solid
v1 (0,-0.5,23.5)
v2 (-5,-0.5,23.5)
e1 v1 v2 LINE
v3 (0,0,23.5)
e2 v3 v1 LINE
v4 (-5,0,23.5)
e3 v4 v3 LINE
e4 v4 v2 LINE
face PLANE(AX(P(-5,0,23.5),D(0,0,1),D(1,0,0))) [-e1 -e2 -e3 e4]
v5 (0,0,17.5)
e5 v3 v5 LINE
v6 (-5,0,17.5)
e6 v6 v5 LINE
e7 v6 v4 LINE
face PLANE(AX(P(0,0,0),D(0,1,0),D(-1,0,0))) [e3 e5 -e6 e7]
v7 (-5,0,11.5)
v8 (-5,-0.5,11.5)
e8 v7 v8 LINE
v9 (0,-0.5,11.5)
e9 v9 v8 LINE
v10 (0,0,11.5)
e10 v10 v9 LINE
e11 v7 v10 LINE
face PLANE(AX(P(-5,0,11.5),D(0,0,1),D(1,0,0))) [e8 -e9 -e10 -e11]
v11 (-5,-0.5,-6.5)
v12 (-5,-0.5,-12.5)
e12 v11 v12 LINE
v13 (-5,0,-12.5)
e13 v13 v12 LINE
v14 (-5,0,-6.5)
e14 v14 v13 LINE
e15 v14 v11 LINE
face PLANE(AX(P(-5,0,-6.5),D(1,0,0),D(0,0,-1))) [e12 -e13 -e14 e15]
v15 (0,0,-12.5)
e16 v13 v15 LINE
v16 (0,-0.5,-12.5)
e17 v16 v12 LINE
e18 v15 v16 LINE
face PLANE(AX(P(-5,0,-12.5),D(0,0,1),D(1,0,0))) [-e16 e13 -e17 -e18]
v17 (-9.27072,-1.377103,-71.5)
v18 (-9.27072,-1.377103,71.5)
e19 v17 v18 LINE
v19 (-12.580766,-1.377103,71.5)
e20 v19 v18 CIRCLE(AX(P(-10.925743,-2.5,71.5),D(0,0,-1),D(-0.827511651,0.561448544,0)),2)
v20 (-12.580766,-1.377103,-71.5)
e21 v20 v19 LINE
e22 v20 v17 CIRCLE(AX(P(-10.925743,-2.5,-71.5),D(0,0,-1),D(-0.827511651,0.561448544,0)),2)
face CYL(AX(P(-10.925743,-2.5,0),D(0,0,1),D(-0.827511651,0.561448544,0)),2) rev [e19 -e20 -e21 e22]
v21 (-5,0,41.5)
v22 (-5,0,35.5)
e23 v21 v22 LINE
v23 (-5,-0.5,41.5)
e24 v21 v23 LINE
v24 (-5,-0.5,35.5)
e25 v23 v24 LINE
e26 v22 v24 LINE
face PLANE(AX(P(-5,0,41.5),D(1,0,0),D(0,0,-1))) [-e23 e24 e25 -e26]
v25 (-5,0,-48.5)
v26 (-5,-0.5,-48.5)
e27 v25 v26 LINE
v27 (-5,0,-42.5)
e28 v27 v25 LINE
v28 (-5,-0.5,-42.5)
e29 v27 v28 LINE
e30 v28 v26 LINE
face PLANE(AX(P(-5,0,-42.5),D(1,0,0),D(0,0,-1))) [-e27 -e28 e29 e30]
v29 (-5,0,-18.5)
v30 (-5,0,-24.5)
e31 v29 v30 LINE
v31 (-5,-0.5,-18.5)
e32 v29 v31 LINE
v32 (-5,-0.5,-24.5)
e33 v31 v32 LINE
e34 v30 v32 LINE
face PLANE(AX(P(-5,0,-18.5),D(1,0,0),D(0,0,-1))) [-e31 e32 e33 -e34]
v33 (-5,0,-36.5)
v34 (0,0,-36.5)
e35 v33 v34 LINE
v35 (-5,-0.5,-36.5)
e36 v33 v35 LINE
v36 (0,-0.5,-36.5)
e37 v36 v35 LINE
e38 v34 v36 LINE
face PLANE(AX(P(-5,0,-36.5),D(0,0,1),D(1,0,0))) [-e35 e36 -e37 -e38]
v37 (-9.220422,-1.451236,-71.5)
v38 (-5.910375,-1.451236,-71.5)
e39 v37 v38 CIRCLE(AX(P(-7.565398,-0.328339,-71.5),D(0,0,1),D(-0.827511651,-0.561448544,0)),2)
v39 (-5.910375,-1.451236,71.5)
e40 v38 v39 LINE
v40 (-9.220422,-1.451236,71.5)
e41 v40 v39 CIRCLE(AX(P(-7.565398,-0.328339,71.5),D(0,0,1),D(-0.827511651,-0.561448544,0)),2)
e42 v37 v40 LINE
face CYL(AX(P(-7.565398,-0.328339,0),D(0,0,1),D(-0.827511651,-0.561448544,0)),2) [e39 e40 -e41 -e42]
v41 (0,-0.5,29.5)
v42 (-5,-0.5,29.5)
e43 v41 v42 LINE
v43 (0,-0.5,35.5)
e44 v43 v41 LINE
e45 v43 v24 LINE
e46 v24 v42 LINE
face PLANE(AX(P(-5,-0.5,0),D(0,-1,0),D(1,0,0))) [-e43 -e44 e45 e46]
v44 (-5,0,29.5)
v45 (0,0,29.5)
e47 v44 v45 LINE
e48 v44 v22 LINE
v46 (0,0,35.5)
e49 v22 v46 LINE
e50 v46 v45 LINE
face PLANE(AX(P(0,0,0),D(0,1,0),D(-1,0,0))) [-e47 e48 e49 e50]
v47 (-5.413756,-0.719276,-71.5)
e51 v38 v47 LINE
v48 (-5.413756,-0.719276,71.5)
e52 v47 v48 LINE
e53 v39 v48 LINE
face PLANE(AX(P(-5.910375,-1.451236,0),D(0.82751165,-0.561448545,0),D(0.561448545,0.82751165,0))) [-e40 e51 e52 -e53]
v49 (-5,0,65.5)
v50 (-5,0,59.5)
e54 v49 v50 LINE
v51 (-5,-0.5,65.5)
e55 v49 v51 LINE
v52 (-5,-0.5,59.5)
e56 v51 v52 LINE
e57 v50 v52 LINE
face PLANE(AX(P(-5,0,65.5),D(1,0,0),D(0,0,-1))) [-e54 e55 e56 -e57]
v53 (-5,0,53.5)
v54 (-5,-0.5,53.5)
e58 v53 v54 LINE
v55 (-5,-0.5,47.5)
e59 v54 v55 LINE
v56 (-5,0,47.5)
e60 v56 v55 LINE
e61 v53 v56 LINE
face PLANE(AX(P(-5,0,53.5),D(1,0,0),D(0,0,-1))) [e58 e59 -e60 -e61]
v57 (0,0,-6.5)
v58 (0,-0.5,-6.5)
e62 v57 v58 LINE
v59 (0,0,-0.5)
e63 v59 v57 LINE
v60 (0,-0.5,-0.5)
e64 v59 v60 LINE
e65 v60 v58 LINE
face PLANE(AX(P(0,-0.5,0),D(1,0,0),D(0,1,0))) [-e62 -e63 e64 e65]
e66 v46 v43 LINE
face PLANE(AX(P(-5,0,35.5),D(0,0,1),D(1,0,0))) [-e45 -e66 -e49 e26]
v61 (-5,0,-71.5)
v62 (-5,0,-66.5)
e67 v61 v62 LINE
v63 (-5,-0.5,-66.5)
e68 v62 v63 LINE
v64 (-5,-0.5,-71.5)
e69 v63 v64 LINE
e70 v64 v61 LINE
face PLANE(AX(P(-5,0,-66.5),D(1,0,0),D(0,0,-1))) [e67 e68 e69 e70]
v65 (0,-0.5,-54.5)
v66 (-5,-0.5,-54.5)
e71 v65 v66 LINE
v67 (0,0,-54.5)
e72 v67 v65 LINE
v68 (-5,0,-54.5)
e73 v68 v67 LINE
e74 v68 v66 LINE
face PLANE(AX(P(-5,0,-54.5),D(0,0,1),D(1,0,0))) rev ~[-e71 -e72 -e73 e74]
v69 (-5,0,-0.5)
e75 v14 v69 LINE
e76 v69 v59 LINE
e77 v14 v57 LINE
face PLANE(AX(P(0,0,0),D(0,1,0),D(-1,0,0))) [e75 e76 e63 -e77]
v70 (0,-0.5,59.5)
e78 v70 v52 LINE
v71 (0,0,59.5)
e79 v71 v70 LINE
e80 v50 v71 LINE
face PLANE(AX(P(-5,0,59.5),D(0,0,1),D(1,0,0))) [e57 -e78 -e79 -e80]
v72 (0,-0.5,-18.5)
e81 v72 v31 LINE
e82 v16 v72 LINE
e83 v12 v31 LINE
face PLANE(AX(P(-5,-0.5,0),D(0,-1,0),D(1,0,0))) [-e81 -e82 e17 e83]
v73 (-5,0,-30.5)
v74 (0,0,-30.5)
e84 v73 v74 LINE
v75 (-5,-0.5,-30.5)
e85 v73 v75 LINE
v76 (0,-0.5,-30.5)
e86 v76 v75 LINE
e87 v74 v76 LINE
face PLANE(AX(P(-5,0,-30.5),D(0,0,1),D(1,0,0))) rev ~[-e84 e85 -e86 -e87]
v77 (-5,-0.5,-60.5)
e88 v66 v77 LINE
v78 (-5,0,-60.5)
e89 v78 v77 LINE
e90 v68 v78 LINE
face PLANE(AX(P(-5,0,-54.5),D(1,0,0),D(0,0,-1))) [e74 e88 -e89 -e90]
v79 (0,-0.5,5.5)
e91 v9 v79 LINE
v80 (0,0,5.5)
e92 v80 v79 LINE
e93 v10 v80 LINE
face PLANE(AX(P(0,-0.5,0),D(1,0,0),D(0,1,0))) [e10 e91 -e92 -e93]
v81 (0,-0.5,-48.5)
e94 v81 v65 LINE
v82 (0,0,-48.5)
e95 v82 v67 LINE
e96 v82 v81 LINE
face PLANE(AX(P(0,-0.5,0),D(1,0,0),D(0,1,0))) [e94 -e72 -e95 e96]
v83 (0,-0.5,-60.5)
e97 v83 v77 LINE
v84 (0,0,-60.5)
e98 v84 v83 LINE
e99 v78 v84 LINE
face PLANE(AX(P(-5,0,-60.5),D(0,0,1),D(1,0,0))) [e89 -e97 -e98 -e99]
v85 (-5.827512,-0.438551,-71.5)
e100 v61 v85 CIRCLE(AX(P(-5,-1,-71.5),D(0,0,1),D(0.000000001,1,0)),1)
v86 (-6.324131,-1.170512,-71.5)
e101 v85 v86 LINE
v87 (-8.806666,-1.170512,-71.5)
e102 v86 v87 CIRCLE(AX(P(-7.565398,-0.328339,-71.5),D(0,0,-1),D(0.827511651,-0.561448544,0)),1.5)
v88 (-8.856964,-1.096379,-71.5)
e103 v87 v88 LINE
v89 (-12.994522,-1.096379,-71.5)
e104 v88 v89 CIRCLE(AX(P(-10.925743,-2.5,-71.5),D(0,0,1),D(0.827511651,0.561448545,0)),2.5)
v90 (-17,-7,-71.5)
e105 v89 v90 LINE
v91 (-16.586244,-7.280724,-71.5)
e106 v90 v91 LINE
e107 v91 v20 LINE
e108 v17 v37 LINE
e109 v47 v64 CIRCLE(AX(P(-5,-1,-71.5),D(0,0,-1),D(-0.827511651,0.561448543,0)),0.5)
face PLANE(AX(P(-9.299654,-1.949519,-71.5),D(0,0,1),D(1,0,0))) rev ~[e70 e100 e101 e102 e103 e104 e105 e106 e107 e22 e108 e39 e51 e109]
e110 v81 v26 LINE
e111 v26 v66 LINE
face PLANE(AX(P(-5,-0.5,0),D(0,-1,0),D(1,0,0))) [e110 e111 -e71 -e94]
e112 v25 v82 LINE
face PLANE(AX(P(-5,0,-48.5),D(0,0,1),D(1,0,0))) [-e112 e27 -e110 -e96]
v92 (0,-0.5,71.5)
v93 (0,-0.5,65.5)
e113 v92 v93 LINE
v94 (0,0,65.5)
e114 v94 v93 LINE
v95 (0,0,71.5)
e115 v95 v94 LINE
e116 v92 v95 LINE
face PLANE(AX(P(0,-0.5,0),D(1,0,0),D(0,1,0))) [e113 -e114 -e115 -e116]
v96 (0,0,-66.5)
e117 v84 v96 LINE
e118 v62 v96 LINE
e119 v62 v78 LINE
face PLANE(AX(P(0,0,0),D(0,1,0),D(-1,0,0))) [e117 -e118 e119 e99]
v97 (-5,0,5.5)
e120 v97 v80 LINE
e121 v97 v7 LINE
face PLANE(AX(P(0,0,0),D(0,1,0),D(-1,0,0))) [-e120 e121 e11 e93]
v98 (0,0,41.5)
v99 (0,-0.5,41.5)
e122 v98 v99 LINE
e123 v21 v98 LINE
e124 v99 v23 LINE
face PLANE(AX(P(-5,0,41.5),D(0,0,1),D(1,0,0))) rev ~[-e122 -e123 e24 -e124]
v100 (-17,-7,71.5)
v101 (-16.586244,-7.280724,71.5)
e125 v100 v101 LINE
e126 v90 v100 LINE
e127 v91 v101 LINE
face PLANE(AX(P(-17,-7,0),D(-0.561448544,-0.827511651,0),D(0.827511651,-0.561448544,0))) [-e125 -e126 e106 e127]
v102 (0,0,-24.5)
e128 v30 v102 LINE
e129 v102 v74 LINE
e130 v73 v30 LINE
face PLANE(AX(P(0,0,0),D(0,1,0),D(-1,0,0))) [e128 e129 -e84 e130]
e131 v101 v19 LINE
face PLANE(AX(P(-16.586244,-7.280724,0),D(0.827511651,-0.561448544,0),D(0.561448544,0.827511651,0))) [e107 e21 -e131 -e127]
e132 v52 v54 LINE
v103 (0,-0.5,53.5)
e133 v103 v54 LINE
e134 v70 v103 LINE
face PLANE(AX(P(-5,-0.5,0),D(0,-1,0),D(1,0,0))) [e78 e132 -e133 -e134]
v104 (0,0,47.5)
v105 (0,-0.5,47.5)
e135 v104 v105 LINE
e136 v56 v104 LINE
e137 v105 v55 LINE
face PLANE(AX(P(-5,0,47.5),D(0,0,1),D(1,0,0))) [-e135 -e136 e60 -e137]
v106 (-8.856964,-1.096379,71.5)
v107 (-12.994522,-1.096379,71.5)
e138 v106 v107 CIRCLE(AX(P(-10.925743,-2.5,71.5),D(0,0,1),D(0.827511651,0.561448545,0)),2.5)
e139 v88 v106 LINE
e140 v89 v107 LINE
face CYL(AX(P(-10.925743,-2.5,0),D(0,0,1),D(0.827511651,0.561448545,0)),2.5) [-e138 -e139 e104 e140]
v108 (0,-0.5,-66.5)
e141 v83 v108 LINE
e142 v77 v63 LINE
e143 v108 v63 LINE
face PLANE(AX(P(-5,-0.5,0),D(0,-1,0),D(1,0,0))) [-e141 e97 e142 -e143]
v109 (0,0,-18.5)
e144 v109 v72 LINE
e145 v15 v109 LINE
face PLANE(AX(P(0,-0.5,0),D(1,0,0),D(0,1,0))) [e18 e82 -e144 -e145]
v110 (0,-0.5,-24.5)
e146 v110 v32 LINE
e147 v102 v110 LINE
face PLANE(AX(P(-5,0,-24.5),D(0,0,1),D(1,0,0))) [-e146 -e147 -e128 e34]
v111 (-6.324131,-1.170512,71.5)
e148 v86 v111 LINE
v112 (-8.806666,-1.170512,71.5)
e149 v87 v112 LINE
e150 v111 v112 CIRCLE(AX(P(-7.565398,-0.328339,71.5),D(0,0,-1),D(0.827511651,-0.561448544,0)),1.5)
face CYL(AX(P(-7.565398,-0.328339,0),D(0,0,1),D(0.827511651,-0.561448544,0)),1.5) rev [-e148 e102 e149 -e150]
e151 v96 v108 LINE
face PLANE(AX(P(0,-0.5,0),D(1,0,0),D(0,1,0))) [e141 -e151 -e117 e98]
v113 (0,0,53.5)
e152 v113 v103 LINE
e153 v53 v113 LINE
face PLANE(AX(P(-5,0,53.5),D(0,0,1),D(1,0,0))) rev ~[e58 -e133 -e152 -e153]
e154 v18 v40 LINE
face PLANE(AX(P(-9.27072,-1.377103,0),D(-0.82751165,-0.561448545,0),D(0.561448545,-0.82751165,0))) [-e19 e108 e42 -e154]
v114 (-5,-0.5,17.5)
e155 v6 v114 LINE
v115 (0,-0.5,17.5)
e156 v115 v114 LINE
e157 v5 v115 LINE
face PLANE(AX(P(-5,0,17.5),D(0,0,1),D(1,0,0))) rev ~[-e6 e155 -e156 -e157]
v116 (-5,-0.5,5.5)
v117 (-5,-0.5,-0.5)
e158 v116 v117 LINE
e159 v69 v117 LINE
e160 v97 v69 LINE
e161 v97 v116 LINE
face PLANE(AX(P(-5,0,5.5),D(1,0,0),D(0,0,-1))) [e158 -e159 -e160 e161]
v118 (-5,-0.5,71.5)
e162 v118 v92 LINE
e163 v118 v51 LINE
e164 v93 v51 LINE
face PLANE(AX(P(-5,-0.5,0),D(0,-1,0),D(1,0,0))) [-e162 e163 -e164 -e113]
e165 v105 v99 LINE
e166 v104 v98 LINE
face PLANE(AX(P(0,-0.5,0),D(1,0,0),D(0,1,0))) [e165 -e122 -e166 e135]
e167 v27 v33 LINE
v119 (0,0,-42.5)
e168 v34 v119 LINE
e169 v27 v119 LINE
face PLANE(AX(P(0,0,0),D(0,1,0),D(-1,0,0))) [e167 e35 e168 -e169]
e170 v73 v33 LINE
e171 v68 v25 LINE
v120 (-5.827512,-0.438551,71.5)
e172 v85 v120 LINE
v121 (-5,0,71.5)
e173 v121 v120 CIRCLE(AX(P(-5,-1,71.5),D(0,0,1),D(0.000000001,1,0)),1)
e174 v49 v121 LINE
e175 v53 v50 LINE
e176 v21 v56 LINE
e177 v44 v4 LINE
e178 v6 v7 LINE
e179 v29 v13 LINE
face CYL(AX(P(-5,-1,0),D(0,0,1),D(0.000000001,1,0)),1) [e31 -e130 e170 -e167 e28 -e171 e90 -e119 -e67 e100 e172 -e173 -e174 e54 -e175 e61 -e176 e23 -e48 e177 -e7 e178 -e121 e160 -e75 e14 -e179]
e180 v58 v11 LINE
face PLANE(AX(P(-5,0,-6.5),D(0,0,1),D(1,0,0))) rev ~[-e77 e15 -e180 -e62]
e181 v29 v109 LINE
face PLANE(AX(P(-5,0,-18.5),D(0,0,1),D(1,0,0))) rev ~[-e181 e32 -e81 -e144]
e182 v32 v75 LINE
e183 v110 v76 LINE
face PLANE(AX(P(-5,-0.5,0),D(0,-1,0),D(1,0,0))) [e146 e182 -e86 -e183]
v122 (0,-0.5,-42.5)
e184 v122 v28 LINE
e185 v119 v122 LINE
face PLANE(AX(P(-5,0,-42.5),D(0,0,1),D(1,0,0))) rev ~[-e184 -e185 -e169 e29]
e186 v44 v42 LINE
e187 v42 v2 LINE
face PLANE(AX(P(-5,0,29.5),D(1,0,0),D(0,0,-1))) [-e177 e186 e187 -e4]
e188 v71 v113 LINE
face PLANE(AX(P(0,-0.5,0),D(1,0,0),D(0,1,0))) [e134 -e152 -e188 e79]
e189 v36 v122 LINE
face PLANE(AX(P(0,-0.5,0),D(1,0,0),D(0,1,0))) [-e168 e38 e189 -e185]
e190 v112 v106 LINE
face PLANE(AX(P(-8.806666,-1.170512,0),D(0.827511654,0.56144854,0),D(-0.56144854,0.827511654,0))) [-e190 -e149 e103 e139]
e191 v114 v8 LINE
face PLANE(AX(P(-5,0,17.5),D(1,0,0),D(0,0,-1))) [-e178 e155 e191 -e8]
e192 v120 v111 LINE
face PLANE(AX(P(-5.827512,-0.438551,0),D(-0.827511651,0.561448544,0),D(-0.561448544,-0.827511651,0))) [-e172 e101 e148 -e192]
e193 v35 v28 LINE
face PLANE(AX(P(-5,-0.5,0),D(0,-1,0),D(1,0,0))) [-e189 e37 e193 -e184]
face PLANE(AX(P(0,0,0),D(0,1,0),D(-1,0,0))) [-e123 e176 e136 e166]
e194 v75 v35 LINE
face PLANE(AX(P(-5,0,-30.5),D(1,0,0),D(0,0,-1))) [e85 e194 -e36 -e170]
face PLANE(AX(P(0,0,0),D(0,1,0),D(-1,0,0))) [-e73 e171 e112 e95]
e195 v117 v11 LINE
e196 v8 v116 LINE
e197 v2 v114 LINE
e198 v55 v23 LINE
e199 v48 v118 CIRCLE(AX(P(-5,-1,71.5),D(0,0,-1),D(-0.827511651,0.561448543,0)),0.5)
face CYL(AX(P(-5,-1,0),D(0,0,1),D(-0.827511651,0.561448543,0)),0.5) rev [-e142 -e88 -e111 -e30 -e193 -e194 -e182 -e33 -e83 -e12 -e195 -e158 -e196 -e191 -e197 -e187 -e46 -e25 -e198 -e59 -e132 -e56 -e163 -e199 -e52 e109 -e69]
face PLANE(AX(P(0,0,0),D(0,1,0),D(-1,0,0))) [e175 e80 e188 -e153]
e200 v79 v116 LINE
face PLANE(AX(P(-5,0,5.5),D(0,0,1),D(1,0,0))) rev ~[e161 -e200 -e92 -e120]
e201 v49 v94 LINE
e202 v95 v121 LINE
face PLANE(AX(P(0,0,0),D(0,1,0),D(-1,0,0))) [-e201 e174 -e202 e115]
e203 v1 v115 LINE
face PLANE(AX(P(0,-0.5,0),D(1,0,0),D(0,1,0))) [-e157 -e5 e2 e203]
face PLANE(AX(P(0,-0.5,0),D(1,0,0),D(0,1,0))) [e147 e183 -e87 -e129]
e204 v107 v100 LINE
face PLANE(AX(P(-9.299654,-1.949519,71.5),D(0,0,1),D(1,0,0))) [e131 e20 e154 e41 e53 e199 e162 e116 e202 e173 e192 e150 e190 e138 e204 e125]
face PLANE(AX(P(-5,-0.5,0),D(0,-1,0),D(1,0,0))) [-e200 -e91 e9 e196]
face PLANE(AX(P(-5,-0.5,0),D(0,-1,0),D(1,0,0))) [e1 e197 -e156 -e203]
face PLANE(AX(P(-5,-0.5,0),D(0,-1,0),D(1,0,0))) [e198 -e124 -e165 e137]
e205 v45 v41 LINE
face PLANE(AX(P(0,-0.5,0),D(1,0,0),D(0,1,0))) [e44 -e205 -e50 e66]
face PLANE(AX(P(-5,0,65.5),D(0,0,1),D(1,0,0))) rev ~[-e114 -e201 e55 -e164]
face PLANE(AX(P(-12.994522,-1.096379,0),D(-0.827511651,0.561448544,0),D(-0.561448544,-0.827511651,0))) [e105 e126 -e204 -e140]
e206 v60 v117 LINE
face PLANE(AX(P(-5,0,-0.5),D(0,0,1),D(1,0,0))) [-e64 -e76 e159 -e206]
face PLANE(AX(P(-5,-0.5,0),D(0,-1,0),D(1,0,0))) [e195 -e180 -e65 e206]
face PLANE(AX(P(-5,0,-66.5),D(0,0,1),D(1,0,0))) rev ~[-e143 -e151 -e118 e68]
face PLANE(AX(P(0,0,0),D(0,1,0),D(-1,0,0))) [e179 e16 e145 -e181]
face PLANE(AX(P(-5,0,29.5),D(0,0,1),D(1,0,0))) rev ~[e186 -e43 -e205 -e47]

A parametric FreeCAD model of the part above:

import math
import FreeCAD as App
import Part
import Sketcher

V = App.Vector
Q = App.Units.Quantity


def add_polygon(sketch, points):
    """Adds a closed chain of lines whose ends are joined by coincident constraints."""
    first, n = sketch.GeometryCount, len(points)
    for a, b in zip(points, points[1:] + points[:1]):
        sketch.addGeometry(Part.LineSegment(App.Vector(*a, 0), App.Vector(*b, 0)), False)
    for i in range(n):
        sketch.addConstraint(Sketcher.Constraint("Coincident", first + i, 2, first + (i + 1) % n, 1))

doc = App.newDocument("Part")
body = doc.addObject("PartDesign::Body", "Body")

# Sketch on XY plane
sketch1 = body.newObject("Sketcher::SketchObject", "Sketch")
sketch1.AttachmentSupport = (doc.getObject("XY_Plane"), [""])
sketch1.MapMode = "FlatFace"
sketch1.addGeometry([
    Part.LineSegment(V(0, 0, 0), V(-5, 0, 0)),  # 0
    Part.ArcOfCircle(Part.Circle(V(-5, -1, 0), V(0, 0, 1), 1), math.radians(90), math.radians(145.843967)),  # 1
    Part.LineSegment(V(-5.827512, -0.438551, 0), V(-6.324131, -1.170512, 0)),  # 2
    Part.ArcOfCircle(Part.Circle(V(-7.565398, -0.328339, 0), V(0, 0, 1), 1.5), math.radians(-145.843966), math.radians(-34.156034)),  # 3
    Part.LineSegment(V(-8.806666, -1.170512, 0), V(-8.856964, -1.096379, 0)),  # 4
    Part.ArcOfCircle(Part.Circle(V(-10.925743, -2.5, 0), V(0, 0, 1), 2.5), math.radians(34.156034), math.radians(145.843966)),  # 5
    Part.LineSegment(V(-12.994522, -1.096379, 0), V(-17, -7, 0)),  # 6
    Part.LineSegment(V(-17, -7, 0), V(-16.586244, -7.280724, 0)),  # 7
    Part.LineSegment(V(-16.586244, -7.280724, 0), V(-12.580766, -1.377103, 0)),  # 8
    Part.ArcOfCircle(Part.Circle(V(-10.925743, -2.5, 0), V(0, 0, 1), 2), math.radians(34.156034), math.radians(145.843966)),  # 9
    Part.LineSegment(V(-9.27072, -1.377103, 0), V(-9.220422, -1.451236, 0)),  # 10
    Part.ArcOfCircle(Part.Circle(V(-7.565398, -0.328339, 0), V(0, 0, 1), 2), math.radians(-145.843967), math.radians(-34.156034)),  # 11
    Part.LineSegment(V(-5.910375, -1.451236, 0), V(-5.413756, -0.719276, 0)),  # 12
    Part.ArcOfCircle(Part.Circle(V(-5, -1, 0), V(0, 0, 1), 0.5), math.radians(90), math.radians(145.843967)),  # 13
    Part.LineSegment(V(-5, -0.5, 0), V(0, -0.5, 0)),  # 14
    Part.LineSegment(V(0, -0.5, 0), V(0, 0, 0)),  # 15
], False)
sketch1.addConstraint([
    Sketcher.Constraint("Tangent", 0, 2, 1, 1),
    Sketcher.Constraint("Tangent", 1, 2, 2, 1),
    Sketcher.Constraint("Tangent", 2, 2, 3, 2),
    Sketcher.Constraint("Tangent", 3, 1, 4, 1),
    Sketcher.Constraint("Tangent", 4, 2, 5, 1),
    Sketcher.Constraint("Tangent", 5, 2, 6, 1),
    Sketcher.Constraint("Coincident", 6, 2, 7, 1),
    Sketcher.Constraint("Coincident", 7, 2, 8, 1),
    Sketcher.Constraint("Tangent", 8, 2, 9, 2),
    Sketcher.Constraint("Tangent", 9, 1, 10, 1),
    Sketcher.Constraint("Tangent", 10, 2, 11, 1),
    Sketcher.Constraint("Tangent", 11, 2, 12, 1),
    Sketcher.Constraint("Tangent", 12, 2, 13, 2),
    Sketcher.Constraint("Tangent", 13, 1, 14, 1),
    Sketcher.Constraint("Coincident", 14, 2, 15, 1),
    Sketcher.Constraint("Coincident", 15, 2, 0, 1),
    Sketcher.Constraint("Horizontal", 0),
    Sketcher.Constraint("Horizontal", 14),
    Sketcher.Constraint("Vertical", 15),
    Sketcher.Constraint("Coincident", 15, 2, -1, 1),
    Sketcher.Constraint("Coincident", 9, 3, 5, 3),
    Sketcher.Constraint("Coincident", 11, 3, 3, 3),
    Sketcher.Constraint("Coincident", 13, 3, 1, 3),
    Sketcher.Constraint("Equal", 9, 11),
    Sketcher.Constraint("Parallel", 2, 6),
    Sketcher.Constraint("Perpendicular", 6, 7),
    Sketcher.Constraint("Perpendicular", 7, 8),
    Sketcher.Constraint("Parallel", 4, 10),
    Sketcher.Constraint("Parallel", 8, 12),
    Sketcher.Constraint("Horizontal", 2, 2, 3, 1),
    Sketcher.Constraint("Radius", 1, Q("1 mm")),
    Sketcher.Constraint("Radius", 9, Q("2 mm")),
    Sketcher.Constraint("Radius", 3, Q("1.5 mm")),
    Sketcher.Constraint("DistanceX", 0, 2, 0, 1, Q("5 mm")),
    Sketcher.Constraint("DistanceX", 6, 2, -1, 1, Q("17 mm")),
    Sketcher.Constraint("DistanceY", 6, 2, -1, 1, Q("7 mm")),
    Sketcher.Constraint("DistanceY", 5, 3, -1, 1, Q("2.5 mm")),
    Sketcher.Constraint("DistanceX", 3, 3, -1, 1, Q("7.565398 mm")),
])
pad1 = body.newObject("PartDesign::Pad", "Pad")
pad1.Profile = sketch1
pad1.Length = 143
pad1.Midplane = True

# Sketch on XZ plane
sketch2 = body.newObject("Sketcher::SketchObject", "Sketch001")
sketch2.AttachmentSupport = (doc.getObject("XZ_Plane"), [""])
sketch2.MapMode = "FlatFace"
add_polygon(sketch2, [(-5, 59.5), (-5, 65.5), (0, 65.5), (0, 59.5)])  # lines 0-3
sketch2.addConstraint([
    Sketcher.Constraint("Vertical", 0),
    Sketcher.Constraint("Horizontal", 1),
    Sketcher.Constraint("Vertical", 2),
    Sketcher.Constraint("Horizontal", 3),
    Sketcher.Constraint("PointOnObject", 1, 2, -2),
    Sketcher.Constraint("DistanceX", 1, 1, 1, 2, Q("5 mm")),
    Sketcher.Constraint("DistanceY", 0, 1, 0, 2, Q("6 mm")),
    Sketcher.Constraint("DistanceY", -1, 1, 0, 2, Q("65.5 mm")),
])
pocket1 = body.newObject("PartDesign::Pocket", "Pocket")
pocket1.Profile = sketch2
pocket1.Type = "ThroughAll"
pocket1.Reversed = True
doc.recompute()

linearpattern = body.newObject("PartDesign::LinearPattern", "LinearPattern")
linearpattern.Originals = [pocket1]
linearpattern.Direction = (doc.getObject("Z_Axis"), [""])
linearpattern.Mode = "offset"
linearpattern.Offset = 12
linearpattern.Occurrences = 12
linearpattern.Reversed = True
body.Tip = linearpattern

doc.recompute()
